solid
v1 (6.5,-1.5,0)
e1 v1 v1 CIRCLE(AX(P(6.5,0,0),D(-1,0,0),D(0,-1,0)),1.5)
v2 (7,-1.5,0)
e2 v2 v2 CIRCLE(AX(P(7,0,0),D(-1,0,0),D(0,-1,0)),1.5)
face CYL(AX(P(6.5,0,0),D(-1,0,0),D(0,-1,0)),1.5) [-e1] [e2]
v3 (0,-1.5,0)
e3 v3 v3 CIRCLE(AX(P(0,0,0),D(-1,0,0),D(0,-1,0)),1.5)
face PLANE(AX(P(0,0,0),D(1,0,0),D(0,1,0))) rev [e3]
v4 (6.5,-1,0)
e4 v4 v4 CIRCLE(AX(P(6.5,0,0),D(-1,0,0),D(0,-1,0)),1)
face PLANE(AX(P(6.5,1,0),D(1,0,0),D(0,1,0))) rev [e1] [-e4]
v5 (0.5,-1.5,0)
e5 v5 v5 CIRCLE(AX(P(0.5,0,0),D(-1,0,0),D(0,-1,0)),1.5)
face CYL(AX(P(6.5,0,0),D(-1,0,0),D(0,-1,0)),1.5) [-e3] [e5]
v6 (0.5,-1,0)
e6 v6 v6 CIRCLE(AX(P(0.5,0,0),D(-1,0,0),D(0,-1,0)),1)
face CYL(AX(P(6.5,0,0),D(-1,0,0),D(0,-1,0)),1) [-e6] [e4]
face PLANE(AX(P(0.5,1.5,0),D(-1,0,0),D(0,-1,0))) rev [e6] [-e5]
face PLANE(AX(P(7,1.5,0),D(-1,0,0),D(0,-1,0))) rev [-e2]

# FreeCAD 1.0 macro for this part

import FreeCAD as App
import Part
import Sketcher
from FreeCAD import Vector

doc = App.newDocument("Part")
body = doc.addObject("PartDesign::Body", "Body")

sketch1 = doc.addObject("Sketcher::SketchObject", "Sketch")
body.addObject(sketch1)
sketch1.AttachmentSupport = (doc.XY_Plane, [""])
sketch1.MapMode = "FlatFace"
sketch1.addGeometry(Part.LineSegment(Vector(0, 0, 0), Vector(7, 0, 0)), False)
sketch1.addGeometry(Part.LineSegment(Vector(7, 0, 0), Vector(7, 1.5, 0)), False)
sketch1.addGeometry(Part.LineSegment(Vector(7, 1.5, 0), Vector(6.5, 1.5, 0)), False)
sketch1.addGeometry(Part.LineSegment(Vector(6.5, 1.5, 0), Vector(6.5, 1, 0)), False)
sketch1.addGeometry(Part.LineSegment(Vector(6.5, 1, 0), Vector(0.5, 1, 0)), False)
sketch1.addGeometry(Part.LineSegment(Vector(0.5, 1, 0), Vector(0.5, 1.5, 0)), False)
sketch1.addGeometry(Part.LineSegment(Vector(0.5, 1.5, 0), Vector(0, 1.5, 0)), False)
sketch1.addGeometry(Part.LineSegment(Vector(0, 1.5, 0), Vector(0, 0, 0)), False)
sketch1.addConstraint(Sketcher.Constraint("Coincident", 0, 2, 1, 1))
sketch1.addConstraint(Sketcher.Constraint("Coincident", 1, 2, 2, 1))
sketch1.addConstraint(Sketcher.Constraint("Coincident", 2, 2, 3, 1))
sketch1.addConstraint(Sketcher.Constraint("Coincident", 3, 2, 4, 1))
sketch1.addConstraint(Sketcher.Constraint("Coincident", 4, 2, 5, 1))
sketch1.addConstraint(Sketcher.Constraint("Coincident", 5, 2, 6, 1))
sketch1.addConstraint(Sketcher.Constraint("Coincident", 6, 2, 7, 1))
sketch1.addConstraint(Sketcher.Constraint("Coincident", 7, 2, 0, 1))
sketch1.addConstraint(Sketcher.Constraint("Horizontal", 0))
sketch1.addConstraint(Sketcher.Constraint("Vertical", 1))
sketch1.addConstraint(Sketcher.Constraint("Horizontal", 2))
sketch1.addConstraint(Sketcher.Constraint("Vertical", 3))
sketch1.addConstraint(Sketcher.Constraint("Horizontal", 4))
sketch1.addConstraint(Sketcher.Constraint("Vertical", 5))
sketch1.addConstraint(Sketcher.Constraint("Horizontal", 6))
sketch1.addConstraint(Sketcher.Constraint("Vertical", 7))
sketch1.addConstraint(Sketcher.Constraint("Coincident", 7, 2, -1, 1))
sketch1.addConstraint(Sketcher.Constraint("Horizontal", 2, 2, 5, 2))
sketch1.addConstraint(Sketcher.Constraint("Equal", 2, 6))
sketch1.addConstraint(Sketcher.Constraint("Equal", 6, 3))
sketch1.addConstraint(Sketcher.Constraint("DistanceX", 0, 1, 0, 2, 7.0))
sketch1.addConstraint(Sketcher.Constraint("DistanceX", 4, 2, 4, 1, 6.0))
sketch1.addConstraint(Sketcher.Constraint("DistanceY", 1, 1, 1, 2, 1.5))
revolution = doc.addObject("PartDesign::Revolution", "Revolution")
body.addObject(revolution)
revolution.Profile = sketch1
revolution.ReferenceAxis = (sketch1, ["H_Axis"])
revolution.Angle = 360

doc.recompute()
